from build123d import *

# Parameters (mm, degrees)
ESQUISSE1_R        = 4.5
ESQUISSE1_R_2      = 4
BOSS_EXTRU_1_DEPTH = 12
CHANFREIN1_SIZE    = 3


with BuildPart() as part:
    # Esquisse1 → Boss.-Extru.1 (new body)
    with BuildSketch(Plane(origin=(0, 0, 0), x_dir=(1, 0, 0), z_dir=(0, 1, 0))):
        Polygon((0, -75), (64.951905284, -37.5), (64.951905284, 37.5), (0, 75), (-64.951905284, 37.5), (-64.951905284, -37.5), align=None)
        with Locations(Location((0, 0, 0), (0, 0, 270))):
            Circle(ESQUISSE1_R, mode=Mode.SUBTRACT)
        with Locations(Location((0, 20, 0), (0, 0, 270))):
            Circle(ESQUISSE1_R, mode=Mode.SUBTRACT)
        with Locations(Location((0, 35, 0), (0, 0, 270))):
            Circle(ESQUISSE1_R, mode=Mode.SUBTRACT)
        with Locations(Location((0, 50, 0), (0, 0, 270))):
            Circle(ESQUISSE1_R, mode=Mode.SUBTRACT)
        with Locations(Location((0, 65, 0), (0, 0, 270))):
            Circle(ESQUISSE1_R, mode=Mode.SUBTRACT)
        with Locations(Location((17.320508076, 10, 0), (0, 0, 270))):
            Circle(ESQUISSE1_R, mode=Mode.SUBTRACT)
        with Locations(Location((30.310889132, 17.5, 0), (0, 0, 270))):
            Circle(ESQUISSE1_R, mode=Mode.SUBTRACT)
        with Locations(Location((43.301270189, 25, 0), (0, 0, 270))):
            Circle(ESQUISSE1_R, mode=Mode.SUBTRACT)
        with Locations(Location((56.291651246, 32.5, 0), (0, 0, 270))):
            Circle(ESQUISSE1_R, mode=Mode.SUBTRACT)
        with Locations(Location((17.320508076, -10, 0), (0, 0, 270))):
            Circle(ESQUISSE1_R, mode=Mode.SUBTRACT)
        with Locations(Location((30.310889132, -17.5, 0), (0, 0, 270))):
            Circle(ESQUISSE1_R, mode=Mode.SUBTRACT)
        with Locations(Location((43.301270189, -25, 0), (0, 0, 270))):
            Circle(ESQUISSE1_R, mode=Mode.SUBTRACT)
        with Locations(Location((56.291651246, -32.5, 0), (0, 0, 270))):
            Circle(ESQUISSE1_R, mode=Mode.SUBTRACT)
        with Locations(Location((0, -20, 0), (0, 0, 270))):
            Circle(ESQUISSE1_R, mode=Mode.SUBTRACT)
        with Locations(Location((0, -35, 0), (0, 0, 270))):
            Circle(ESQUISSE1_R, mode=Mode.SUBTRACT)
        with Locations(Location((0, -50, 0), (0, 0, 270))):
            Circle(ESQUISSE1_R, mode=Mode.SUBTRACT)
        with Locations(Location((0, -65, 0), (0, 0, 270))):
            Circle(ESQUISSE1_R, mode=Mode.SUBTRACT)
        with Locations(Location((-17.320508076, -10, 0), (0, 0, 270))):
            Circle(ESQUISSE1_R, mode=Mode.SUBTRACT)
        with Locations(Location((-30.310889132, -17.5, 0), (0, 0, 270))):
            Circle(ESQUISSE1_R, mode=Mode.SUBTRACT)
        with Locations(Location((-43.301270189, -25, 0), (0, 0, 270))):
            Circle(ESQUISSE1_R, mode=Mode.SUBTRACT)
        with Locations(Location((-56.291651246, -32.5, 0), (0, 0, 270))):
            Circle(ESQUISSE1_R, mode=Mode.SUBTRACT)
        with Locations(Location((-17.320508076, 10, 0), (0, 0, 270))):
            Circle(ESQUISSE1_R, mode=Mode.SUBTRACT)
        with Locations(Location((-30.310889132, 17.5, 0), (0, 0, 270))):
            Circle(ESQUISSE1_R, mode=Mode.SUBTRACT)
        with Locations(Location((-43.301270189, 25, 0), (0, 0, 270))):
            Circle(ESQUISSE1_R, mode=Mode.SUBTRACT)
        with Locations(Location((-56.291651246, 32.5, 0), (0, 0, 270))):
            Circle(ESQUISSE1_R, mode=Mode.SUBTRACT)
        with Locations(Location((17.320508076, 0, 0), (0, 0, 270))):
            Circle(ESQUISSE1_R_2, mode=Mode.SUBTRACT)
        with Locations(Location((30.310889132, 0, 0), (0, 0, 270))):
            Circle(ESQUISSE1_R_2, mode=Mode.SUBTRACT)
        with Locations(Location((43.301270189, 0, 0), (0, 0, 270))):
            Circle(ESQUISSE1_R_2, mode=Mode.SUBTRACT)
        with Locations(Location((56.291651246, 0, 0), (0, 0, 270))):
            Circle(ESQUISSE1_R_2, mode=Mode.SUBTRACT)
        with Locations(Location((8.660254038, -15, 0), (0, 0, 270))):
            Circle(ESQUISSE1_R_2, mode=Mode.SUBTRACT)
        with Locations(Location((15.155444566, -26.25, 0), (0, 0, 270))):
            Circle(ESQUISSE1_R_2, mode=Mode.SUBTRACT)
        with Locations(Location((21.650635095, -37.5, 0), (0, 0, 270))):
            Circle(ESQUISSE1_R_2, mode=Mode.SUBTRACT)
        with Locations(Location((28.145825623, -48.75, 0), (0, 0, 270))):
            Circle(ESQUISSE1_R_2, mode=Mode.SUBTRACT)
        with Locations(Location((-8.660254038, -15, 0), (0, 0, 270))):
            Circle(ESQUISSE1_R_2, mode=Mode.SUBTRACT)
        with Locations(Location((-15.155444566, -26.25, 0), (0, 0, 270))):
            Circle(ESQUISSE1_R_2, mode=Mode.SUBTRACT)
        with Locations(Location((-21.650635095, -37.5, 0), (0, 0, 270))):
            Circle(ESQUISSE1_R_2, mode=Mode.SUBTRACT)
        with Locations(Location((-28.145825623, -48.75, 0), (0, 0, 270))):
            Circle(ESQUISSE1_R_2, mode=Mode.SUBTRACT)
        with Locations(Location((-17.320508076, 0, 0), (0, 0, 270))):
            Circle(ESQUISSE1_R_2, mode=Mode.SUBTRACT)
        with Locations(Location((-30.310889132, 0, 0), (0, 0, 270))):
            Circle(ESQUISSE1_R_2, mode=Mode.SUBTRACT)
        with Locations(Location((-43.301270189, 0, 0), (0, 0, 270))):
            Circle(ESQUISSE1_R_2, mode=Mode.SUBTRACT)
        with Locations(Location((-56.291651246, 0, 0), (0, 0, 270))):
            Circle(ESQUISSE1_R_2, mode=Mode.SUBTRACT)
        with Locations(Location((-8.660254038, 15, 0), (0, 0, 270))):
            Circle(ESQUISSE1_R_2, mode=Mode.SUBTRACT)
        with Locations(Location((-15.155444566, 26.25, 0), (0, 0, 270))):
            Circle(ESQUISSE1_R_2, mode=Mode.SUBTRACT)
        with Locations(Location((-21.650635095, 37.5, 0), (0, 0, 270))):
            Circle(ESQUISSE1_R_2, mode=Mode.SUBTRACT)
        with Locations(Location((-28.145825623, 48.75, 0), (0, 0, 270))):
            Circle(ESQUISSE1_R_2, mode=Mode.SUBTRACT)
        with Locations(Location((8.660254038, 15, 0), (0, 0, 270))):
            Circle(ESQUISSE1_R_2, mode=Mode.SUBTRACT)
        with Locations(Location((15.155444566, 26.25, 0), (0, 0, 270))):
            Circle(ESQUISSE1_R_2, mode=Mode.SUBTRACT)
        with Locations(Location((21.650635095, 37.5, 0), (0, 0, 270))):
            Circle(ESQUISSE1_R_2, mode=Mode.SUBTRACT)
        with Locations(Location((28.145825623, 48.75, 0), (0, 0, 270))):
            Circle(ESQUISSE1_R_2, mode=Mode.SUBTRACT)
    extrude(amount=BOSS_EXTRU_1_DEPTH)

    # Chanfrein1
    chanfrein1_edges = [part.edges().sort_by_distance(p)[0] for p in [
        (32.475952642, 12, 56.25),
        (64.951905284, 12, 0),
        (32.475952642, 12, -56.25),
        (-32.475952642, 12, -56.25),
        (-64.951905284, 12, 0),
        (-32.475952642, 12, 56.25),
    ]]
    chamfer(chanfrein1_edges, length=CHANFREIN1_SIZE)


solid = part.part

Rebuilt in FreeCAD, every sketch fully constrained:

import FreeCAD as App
import Part
import Sketcher

V = App.Vector
Q = App.Units.Quantity


def edges_at(feature, points):
    """Names of the edges that pass closest to the given points."""
    edges = feature.Shape.Edges
    near = lambda p: min(range(len(edges)), key=lambda i: edges[i].distToShape(Part.Vertex(*p))[0])
    return sorted({f"Edge{near(p) + 1}" for p in points})

doc = App.newDocument("Part")
body = doc.addObject("PartDesign::Body", "Body")

# Sketch on XZ plane
sketch1 = doc.addObject("Sketcher::SketchObject", "Sketch")
body.addObject(sketch1)
sketch1.AttachmentSupport = (doc.XZ_Plane, [""])
sketch1.MapMode = "FlatFace"
sketch1.addGeometry([
    Part.LineSegment(V(0, 75, 0), V(64.951905, 37.5, 0)),  # 0
    Part.LineSegment(V(64.951905, 37.5, 0), V(64.951905, -37.5, 0)),  # 1
    Part.LineSegment(V(64.951905, -37.5, 0), V(0, -75, 0)),  # 2
    Part.LineSegment(V(0, -75, 0), V(-64.951905, -37.5, 0)),  # 3
    Part.LineSegment(V(-64.951905, -37.5, 0), V(-64.951905, 37.5, 0)),  # 4
    Part.LineSegment(V(-64.951905, 37.5, 0), V(0, 75, 0)),  # 5
    Part.Circle(V(-28.145826, 48.75, 0), V(0, 0, 1), 4),  # 6
    Part.Circle(V(-21.650635, 37.5, 0), V(0, 0, 1), 4),  # 7
    Part.Circle(V(-56.291651, 32.5, 0), V(0, 0, 1), 4.5),  # 8
    Part.Circle(V(-43.30127, 25, 0), V(0, 0, 1), 4.5),  # 9
    Part.Circle(V(-30.310889, 17.5, 0), V(0, 0, 1), 4.5),  # 10
    Part.Circle(V(-15.155445, 26.25, 0), V(0, 0, 1), 4),  # 11
    Part.Circle(V(-17.320508, 10, 0), V(0, 0, 1), 4.5),  # 12
    Part.Circle(V(-8.660254, 15, 0), V(0, 0, 1), 4),  # 13
    Part.Circle(V(0, 65, 0), V(0, 0, 1), 4.5),  # 14
    Part.Circle(V(0, 50, 0), V(0, 0, 1), 4.5),  # 15
    Part.Circle(V(0, 35, 0), V(0, 0, 1), 4.5),  # 16
    Part.Circle(V(28.145826, 48.75, 0), V(0, 0, 1), 4),  # 17
    Part.Circle(V(21.650635, 37.5, 0), V(0, 0, 1), 4),  # 18
    Part.Circle(V(15.155445, 26.25, 0), V(0, 0, 1), 4),  # 19
    Part.Circle(V(0, 20, 0), V(0, 0, 1), 4.5),  # 20
    Part.Circle(V(30.310889, 17.5, 0), V(0, 0, 1), 4.5),  # 21
    Part.Circle(V(8.660254, 15, 0), V(0, 0, 1), 4),  # 22
    Part.Circle(V(17.320508, 10, 0), V(0, 0, 1), 4.5),  # 23
    Part.Circle(V(43.30127, 25, 0), V(0, 0, 1), 4.5),  # 24
    Part.Circle(V(56.291651, 32.5, 0), V(0, 0, 1), 4.5),  # 25
    Part.Circle(V(-56.291651, 0, 0), V(0, 0, 1), 4),  # 26
    Part.Circle(V(-43.30127, 0, 0), V(0, 0, 1), 4),  # 27
    Part.Circle(V(-56.291651, -32.5, 0), V(0, 0, 1), 4.5),  # 28
    Part.Circle(V(-43.30127, -25, 0), V(0, 0, 1), 4.5),  # 29
    Part.Circle(V(-30.310889, 0, 0), V(0, 0, 1), 4),  # 30
    Part.Circle(V(-17.320508, 0, 0), V(0, 0, 1), 4),  # 31
    Part.Circle(V(-17.320508, -10, 0), V(0, 0, 1), 4.5),  # 32
    Part.Circle(V(-8.660254, -15, 0), V(0, 0, 1), 4),  # 33
    Part.Circle(V(-30.310889, -17.5, 0), V(0, 0, 1), 4.5),  # 34
    Part.Circle(V(-15.155445, -26.25, 0), V(0, 0, 1), 4),  # 35
    Part.Circle(V(-21.650635, -37.5, 0), V(0, 0, 1), 4),  # 36
    Part.Circle(V(-28.145826, -48.75, 0), V(0, 0, 1), 4),  # 37
    Part.Circle(V(0, 0, 0), V(0, 0, 1), 4.5),  # 38
    Part.Circle(V(8.660254, -15, 0), V(0, 0, 1), 4),  # 39
    Part.Circle(V(17.320508, 0, 0), V(0, 0, 1), 4),  # 40
    Part.Circle(V(30.310889, 0, 0), V(0, 0, 1), 4),  # 41
    Part.Circle(V(17.320508, -10, 0), V(0, 0, 1), 4.5),  # 42
    Part.Circle(V(0, -20, 0), V(0, 0, 1), 4.5),  # 43
    Part.Circle(V(15.155445, -26.25, 0), V(0, 0, 1), 4),  # 44
    Part.Circle(V(30.310889, -17.5, 0), V(0, 0, 1), 4.5),  # 45
    Part.Circle(V(43.30127, 0, 0), V(0, 0, 1), 4),  # 46
    Part.Circle(V(56.291651, 0, 0), V(0, 0, 1), 4),  # 47
    Part.Circle(V(43.30127, -25, 0), V(0, 0, 1), 4.5),  # 48
    Part.Circle(V(56.291651, -32.5, 0), V(0, 0, 1), 4.5),  # 49
    Part.Circle(V(0, -35, 0), V(0, 0, 1), 4.5),  # 50
    Part.Circle(V(0, -50, 0), V(0, 0, 1), 4.5),  # 51
    Part.Circle(V(21.650635, -37.5, 0), V(0, 0, 1), 4),  # 52
    Part.Circle(V(28.145826, -48.75, 0), V(0, 0, 1), 4),  # 53
    Part.Circle(V(0, -65, 0), V(0, 0, 1), 4.5),  # 54
], False)
sketch1.addConstraint([
    Sketcher.Constraint("Coincident", 0, 2, 1, 1),
    Sketcher.Constraint("Coincident", 1, 2, 2, 1),
    Sketcher.Constraint("Coincident", 2, 2, 3, 1),
    Sketcher.Constraint("Coincident", 3, 2, 4, 1),
    Sketcher.Constraint("Coincident", 4, 2, 5, 1),
    Sketcher.Constraint("Coincident", 5, 2, 0, 1),
    Sketcher.Constraint("Vertical", 1),
    Sketcher.Constraint("Vertical", 4),
    Sketcher.Constraint("Coincident", 38, 3, -1, 1),
    Sketcher.Constraint("Equal", 6, 7),
    Sketcher.Constraint("Equal", 8, 9),
    Sketcher.Constraint("Equal", 9, 10),
    Sketcher.Constraint("Equal", 7, 11),
    Sketcher.Constraint("Equal", 10, 12),
    Sketcher.Constraint("Equal", 11, 13),
    Sketcher.Constraint("Equal", 12, 14),
    Sketcher.Constraint("Equal", 14, 15),
    Sketcher.Constraint("Equal", 15, 16),
    Sketcher.Constraint("Equal", 13, 17),
    Sketcher.Constraint("Equal", 17, 18),
    Sketcher.Constraint("Equal", 18, 19),
    Sketcher.Constraint("Equal", 16, 20),
    Sketcher.Constraint("Equal", 20, 21),
    Sketcher.Constraint("Equal", 19, 22),
    Sketcher.Constraint("Equal", 21, 23),
    Sketcher.Constraint("Equal", 23, 24),
    Sketcher.Constraint("Equal", 24, 25),
    Sketcher.Constraint("Equal", 22, 26),
    Sketcher.Constraint("Equal", 26, 27),
    Sketcher.Constraint("Equal", 25, 28),
    Sketcher.Constraint("Equal", 28, 29),
    Sketcher.Constraint("Equal", 27, 30),
    Sketcher.Constraint("Equal", 30, 31),
    Sketcher.Constraint("Equal", 29, 32),
    Sketcher.Constraint("Equal", 31, 33),
    Sketcher.Constraint("Equal", 32, 34),
    Sketcher.Constraint("Equal", 33, 35),
    Sketcher.Constraint("Equal", 35, 36),
    Sketcher.Constraint("Equal", 36, 37),
    Sketcher.Constraint("Equal", 34, 38),
    Sketcher.Constraint("Equal", 37, 39),
    Sketcher.Constraint("Equal", 39, 40),
    Sketcher.Constraint("Equal", 40, 41),
    Sketcher.Constraint("Equal", 38, 42),
    Sketcher.Constraint("Equal", 42, 43),
    Sketcher.Constraint("Equal", 41, 44),
    Sketcher.Constraint("Equal", 43, 45),
    Sketcher.Constraint("Equal", 44, 46),
    Sketcher.Constraint("Equal", 46, 47),
    Sketcher.Constraint("Equal", 45, 48),
    Sketcher.Constraint("Equal", 48, 49),
    Sketcher.Constraint("Equal", 49, 50),
    Sketcher.Constraint("Equal", 50, 51),
    Sketcher.Constraint("Equal", 47, 52),
    Sketcher.Constraint("Equal", 52, 53),
    Sketcher.Constraint("Equal", 51, 54),
    Sketcher.Constraint("Symmetric", 25, 3, 28, 3, -1, 1),
    Sketcher.Constraint("Symmetric", 24, 3, 29, 3, -1, 1),
    Sketcher.Constraint("Symmetric", 23, 3, 32, 3, -1, 1),
    Sketcher.Constraint("Symmetric", 22, 3, 33, 3, -1, 1),
    Sketcher.Constraint("Symmetric", 21, 3, 34, 3, -1, 1),
    Sketcher.Constraint("Symmetric", 19, 3, 35, 3, -1, 1),
    Sketcher.Constraint("Symmetric", 18, 3, 36, 3, -1, 1),
    Sketcher.Constraint("Symmetric", 17, 3, 37, 3, -1, 1),
    Sketcher.Constraint("Symmetric", 13, 3, 39, 3, -1, 1),
    Sketcher.Constraint("Symmetric", 31, 3, 40, 3, -1, 1),
    Sketcher.Constraint("Symmetric", 30, 3, 41, 3, -1, 1),
    Sketcher.Constraint("Symmetric", 12, 3, 42, 3, -1, 1),
    Sketcher.Constraint("Symmetric", 20, 3, 43, 3, -1, 1),
    Sketcher.Constraint("Symmetric", 11, 3, 44, 3, -1, 1),
    Sketcher.Constraint("Symmetric", 10, 3, 45, 3, -1, 1),
    Sketcher.Constraint("Symmetric", 27, 3, 46, 3, -1, 1),
    Sketcher.Constraint("Symmetric", 26, 3, 47, 3, -1, 1),
    Sketcher.Constraint("Symmetric", 9, 3, 48, 3, -1, 1),
    Sketcher.Constraint("Symmetric", 8, 3, 49, 3, -1, 1),
    Sketcher.Constraint("Symmetric", 16, 3, 50, 3, -1, 1),
    Sketcher.Constraint("Symmetric", 15, 3, 51, 3, -1, 1),
    Sketcher.Constraint("Symmetric", 7, 3, 52, 3, -1, 1),
    Sketcher.Constraint("Symmetric", 6, 3, 53, 3, -1, 1),
    Sketcher.Constraint("Symmetric", 14, 3, 54, 3, -1, 1),
    Sketcher.Constraint("Symmetric", 0, 2, 3, 2, -1, 1),
    Sketcher.Constraint("Symmetric", 2, 2, 5, 2, -1, 1),
    Sketcher.Constraint("Symmetric", 6, 3, 17, 3, -2),
    Sketcher.Constraint("Symmetric", 7, 3, 18, 3, -2),
    Sketcher.Constraint("Symmetric", 11, 3, 19, 3, -2),
    Sketcher.Constraint("Symmetric", 10, 3, 21, 3, -2),
    Sketcher.Constraint("Symmetric", 13, 3, 22, 3, -2),
    Sketcher.Constraint("Symmetric", 12, 3, 23, 3, -2),
    Sketcher.Constraint("Symmetric", 9, 3, 24, 3, -2),
    Sketcher.Constraint("Symmetric", 8, 3, 25, 3, -2),
    Sketcher.Constraint("PointOnObject", 14, 3, -2),
    Sketcher.Constraint("PointOnObject", 15, 3, -2),
    Sketcher.Constraint("PointOnObject", 16, 3, -2),
    Sketcher.Constraint("PointOnObject", 20, 3, -2),
    Sketcher.Constraint("PointOnObject", 26, 3, -1),
    Sketcher.Constraint("PointOnObject", 27, 3, -1),
    Sketcher.Constraint("PointOnObject", 30, 3, -1),
    Sketcher.Constraint("PointOnObject", 31, 3, -1),
    Sketcher.Constraint("PointOnObject", 2, 2, -2),
    Sketcher.Constraint("Parallel", 2, 5),
    Sketcher.Constraint("Horizontal", 18, 3, 0, 2),
    Sketcher.Constraint("Horizontal", 52, 3, 1, 2),
    Sketcher.Constraint("Vertical", 8, 3, 26, 3),
    Sketcher.Constraint("Vertical", 9, 3, 27, 3),
    Sketcher.Constraint("Vertical", 10, 3, 30, 3),
    Sketcher.Constraint("Vertical", 12, 3, 31, 3),
    Sketcher.Constraint("Diameter", 6, 8.0),
    Sketcher.Constraint("Diameter", 8, 9.0),
    Sketcher.Constraint("DistanceY", 1, 2, 1, 1, 75.0),
    Sketcher.Constraint("Angle", 0, Q("-30 deg")),
    Sketcher.Constraint("Distance", 0, 75.0),
    Sketcher.Constraint("DistanceY", -1, 1, 9, 3, 25.0),
    Sketcher.Constraint("DistanceY", -1, 1, 12, 3, 10.0),
    Sketcher.Constraint("DistanceY", -1, 1, 13, 3, 15.0),
    Sketcher.Constraint("DistanceY", -1, 1, 14, 3, 65.0),
    Sketcher.Constraint("DistanceY", -1, 1, 15, 3, 50.0),
    Sketcher.Constraint("DistanceY", -1, 1, 16, 3, 35.0),
    Sketcher.Constraint("DistanceY", -1, 1, 20, 3, 20.0),
    Sketcher.Constraint("DistanceY", 8, 3, 7, 3, 5.0),
    Sketcher.Constraint("DistanceY", 10, 3, 7, 3, 20.0),
    Sketcher.Constraint("DistanceY", 11, 3, 6, 3, 22.5),
    Sketcher.Constraint("DistanceY", -1, 1, 6, 3, 48.75),
    Sketcher.Constraint("DistanceX", 13, 3, 19, 3, 23.815699),
    Sketcher.Constraint("DistanceX", 8, 3, -1, 1, 56.291651),
    Sketcher.Constraint("DistanceX", 9, 3, -1, 1, 43.30127),
    Sketcher.Constraint("DistanceX", 10, 3, -1, 1, 30.310889),
    Sketcher.Constraint("DistanceX", 12, 3, -1, 1, 17.320508),
    Sketcher.Constraint("DistanceX", 6, 3, 7, 3, 6.495191),
    Sketcher.Constraint("DistanceX", 7, 3, 11, 3, 6.495191),
    Sketcher.Constraint("DistanceX", 11, 3, 13, 3, 6.495191),
])
pad1 = doc.addObject("PartDesign::Pad", "Pad")
body.addObject(pad1)
pad1.Profile = sketch1
pad1.Length = 12
pad1.Reversed = True
doc.recompute()

chamfer = doc.addObject("PartDesign::Chamfer", "Chamfer")
body.addObject(chamfer)
chamfer.Base = (pad1, edges_at(pad1, [
    (32.476, 12, 56.25),
    (64.952, 12, 0),
    (32.476, 12, -56.25),
    (-32.476, 12, -56.25),
    (-64.952, 12, 0),
    (-32.476, 12, 56.25),
]))
chamfer.Size = 3

doc.recompute()
